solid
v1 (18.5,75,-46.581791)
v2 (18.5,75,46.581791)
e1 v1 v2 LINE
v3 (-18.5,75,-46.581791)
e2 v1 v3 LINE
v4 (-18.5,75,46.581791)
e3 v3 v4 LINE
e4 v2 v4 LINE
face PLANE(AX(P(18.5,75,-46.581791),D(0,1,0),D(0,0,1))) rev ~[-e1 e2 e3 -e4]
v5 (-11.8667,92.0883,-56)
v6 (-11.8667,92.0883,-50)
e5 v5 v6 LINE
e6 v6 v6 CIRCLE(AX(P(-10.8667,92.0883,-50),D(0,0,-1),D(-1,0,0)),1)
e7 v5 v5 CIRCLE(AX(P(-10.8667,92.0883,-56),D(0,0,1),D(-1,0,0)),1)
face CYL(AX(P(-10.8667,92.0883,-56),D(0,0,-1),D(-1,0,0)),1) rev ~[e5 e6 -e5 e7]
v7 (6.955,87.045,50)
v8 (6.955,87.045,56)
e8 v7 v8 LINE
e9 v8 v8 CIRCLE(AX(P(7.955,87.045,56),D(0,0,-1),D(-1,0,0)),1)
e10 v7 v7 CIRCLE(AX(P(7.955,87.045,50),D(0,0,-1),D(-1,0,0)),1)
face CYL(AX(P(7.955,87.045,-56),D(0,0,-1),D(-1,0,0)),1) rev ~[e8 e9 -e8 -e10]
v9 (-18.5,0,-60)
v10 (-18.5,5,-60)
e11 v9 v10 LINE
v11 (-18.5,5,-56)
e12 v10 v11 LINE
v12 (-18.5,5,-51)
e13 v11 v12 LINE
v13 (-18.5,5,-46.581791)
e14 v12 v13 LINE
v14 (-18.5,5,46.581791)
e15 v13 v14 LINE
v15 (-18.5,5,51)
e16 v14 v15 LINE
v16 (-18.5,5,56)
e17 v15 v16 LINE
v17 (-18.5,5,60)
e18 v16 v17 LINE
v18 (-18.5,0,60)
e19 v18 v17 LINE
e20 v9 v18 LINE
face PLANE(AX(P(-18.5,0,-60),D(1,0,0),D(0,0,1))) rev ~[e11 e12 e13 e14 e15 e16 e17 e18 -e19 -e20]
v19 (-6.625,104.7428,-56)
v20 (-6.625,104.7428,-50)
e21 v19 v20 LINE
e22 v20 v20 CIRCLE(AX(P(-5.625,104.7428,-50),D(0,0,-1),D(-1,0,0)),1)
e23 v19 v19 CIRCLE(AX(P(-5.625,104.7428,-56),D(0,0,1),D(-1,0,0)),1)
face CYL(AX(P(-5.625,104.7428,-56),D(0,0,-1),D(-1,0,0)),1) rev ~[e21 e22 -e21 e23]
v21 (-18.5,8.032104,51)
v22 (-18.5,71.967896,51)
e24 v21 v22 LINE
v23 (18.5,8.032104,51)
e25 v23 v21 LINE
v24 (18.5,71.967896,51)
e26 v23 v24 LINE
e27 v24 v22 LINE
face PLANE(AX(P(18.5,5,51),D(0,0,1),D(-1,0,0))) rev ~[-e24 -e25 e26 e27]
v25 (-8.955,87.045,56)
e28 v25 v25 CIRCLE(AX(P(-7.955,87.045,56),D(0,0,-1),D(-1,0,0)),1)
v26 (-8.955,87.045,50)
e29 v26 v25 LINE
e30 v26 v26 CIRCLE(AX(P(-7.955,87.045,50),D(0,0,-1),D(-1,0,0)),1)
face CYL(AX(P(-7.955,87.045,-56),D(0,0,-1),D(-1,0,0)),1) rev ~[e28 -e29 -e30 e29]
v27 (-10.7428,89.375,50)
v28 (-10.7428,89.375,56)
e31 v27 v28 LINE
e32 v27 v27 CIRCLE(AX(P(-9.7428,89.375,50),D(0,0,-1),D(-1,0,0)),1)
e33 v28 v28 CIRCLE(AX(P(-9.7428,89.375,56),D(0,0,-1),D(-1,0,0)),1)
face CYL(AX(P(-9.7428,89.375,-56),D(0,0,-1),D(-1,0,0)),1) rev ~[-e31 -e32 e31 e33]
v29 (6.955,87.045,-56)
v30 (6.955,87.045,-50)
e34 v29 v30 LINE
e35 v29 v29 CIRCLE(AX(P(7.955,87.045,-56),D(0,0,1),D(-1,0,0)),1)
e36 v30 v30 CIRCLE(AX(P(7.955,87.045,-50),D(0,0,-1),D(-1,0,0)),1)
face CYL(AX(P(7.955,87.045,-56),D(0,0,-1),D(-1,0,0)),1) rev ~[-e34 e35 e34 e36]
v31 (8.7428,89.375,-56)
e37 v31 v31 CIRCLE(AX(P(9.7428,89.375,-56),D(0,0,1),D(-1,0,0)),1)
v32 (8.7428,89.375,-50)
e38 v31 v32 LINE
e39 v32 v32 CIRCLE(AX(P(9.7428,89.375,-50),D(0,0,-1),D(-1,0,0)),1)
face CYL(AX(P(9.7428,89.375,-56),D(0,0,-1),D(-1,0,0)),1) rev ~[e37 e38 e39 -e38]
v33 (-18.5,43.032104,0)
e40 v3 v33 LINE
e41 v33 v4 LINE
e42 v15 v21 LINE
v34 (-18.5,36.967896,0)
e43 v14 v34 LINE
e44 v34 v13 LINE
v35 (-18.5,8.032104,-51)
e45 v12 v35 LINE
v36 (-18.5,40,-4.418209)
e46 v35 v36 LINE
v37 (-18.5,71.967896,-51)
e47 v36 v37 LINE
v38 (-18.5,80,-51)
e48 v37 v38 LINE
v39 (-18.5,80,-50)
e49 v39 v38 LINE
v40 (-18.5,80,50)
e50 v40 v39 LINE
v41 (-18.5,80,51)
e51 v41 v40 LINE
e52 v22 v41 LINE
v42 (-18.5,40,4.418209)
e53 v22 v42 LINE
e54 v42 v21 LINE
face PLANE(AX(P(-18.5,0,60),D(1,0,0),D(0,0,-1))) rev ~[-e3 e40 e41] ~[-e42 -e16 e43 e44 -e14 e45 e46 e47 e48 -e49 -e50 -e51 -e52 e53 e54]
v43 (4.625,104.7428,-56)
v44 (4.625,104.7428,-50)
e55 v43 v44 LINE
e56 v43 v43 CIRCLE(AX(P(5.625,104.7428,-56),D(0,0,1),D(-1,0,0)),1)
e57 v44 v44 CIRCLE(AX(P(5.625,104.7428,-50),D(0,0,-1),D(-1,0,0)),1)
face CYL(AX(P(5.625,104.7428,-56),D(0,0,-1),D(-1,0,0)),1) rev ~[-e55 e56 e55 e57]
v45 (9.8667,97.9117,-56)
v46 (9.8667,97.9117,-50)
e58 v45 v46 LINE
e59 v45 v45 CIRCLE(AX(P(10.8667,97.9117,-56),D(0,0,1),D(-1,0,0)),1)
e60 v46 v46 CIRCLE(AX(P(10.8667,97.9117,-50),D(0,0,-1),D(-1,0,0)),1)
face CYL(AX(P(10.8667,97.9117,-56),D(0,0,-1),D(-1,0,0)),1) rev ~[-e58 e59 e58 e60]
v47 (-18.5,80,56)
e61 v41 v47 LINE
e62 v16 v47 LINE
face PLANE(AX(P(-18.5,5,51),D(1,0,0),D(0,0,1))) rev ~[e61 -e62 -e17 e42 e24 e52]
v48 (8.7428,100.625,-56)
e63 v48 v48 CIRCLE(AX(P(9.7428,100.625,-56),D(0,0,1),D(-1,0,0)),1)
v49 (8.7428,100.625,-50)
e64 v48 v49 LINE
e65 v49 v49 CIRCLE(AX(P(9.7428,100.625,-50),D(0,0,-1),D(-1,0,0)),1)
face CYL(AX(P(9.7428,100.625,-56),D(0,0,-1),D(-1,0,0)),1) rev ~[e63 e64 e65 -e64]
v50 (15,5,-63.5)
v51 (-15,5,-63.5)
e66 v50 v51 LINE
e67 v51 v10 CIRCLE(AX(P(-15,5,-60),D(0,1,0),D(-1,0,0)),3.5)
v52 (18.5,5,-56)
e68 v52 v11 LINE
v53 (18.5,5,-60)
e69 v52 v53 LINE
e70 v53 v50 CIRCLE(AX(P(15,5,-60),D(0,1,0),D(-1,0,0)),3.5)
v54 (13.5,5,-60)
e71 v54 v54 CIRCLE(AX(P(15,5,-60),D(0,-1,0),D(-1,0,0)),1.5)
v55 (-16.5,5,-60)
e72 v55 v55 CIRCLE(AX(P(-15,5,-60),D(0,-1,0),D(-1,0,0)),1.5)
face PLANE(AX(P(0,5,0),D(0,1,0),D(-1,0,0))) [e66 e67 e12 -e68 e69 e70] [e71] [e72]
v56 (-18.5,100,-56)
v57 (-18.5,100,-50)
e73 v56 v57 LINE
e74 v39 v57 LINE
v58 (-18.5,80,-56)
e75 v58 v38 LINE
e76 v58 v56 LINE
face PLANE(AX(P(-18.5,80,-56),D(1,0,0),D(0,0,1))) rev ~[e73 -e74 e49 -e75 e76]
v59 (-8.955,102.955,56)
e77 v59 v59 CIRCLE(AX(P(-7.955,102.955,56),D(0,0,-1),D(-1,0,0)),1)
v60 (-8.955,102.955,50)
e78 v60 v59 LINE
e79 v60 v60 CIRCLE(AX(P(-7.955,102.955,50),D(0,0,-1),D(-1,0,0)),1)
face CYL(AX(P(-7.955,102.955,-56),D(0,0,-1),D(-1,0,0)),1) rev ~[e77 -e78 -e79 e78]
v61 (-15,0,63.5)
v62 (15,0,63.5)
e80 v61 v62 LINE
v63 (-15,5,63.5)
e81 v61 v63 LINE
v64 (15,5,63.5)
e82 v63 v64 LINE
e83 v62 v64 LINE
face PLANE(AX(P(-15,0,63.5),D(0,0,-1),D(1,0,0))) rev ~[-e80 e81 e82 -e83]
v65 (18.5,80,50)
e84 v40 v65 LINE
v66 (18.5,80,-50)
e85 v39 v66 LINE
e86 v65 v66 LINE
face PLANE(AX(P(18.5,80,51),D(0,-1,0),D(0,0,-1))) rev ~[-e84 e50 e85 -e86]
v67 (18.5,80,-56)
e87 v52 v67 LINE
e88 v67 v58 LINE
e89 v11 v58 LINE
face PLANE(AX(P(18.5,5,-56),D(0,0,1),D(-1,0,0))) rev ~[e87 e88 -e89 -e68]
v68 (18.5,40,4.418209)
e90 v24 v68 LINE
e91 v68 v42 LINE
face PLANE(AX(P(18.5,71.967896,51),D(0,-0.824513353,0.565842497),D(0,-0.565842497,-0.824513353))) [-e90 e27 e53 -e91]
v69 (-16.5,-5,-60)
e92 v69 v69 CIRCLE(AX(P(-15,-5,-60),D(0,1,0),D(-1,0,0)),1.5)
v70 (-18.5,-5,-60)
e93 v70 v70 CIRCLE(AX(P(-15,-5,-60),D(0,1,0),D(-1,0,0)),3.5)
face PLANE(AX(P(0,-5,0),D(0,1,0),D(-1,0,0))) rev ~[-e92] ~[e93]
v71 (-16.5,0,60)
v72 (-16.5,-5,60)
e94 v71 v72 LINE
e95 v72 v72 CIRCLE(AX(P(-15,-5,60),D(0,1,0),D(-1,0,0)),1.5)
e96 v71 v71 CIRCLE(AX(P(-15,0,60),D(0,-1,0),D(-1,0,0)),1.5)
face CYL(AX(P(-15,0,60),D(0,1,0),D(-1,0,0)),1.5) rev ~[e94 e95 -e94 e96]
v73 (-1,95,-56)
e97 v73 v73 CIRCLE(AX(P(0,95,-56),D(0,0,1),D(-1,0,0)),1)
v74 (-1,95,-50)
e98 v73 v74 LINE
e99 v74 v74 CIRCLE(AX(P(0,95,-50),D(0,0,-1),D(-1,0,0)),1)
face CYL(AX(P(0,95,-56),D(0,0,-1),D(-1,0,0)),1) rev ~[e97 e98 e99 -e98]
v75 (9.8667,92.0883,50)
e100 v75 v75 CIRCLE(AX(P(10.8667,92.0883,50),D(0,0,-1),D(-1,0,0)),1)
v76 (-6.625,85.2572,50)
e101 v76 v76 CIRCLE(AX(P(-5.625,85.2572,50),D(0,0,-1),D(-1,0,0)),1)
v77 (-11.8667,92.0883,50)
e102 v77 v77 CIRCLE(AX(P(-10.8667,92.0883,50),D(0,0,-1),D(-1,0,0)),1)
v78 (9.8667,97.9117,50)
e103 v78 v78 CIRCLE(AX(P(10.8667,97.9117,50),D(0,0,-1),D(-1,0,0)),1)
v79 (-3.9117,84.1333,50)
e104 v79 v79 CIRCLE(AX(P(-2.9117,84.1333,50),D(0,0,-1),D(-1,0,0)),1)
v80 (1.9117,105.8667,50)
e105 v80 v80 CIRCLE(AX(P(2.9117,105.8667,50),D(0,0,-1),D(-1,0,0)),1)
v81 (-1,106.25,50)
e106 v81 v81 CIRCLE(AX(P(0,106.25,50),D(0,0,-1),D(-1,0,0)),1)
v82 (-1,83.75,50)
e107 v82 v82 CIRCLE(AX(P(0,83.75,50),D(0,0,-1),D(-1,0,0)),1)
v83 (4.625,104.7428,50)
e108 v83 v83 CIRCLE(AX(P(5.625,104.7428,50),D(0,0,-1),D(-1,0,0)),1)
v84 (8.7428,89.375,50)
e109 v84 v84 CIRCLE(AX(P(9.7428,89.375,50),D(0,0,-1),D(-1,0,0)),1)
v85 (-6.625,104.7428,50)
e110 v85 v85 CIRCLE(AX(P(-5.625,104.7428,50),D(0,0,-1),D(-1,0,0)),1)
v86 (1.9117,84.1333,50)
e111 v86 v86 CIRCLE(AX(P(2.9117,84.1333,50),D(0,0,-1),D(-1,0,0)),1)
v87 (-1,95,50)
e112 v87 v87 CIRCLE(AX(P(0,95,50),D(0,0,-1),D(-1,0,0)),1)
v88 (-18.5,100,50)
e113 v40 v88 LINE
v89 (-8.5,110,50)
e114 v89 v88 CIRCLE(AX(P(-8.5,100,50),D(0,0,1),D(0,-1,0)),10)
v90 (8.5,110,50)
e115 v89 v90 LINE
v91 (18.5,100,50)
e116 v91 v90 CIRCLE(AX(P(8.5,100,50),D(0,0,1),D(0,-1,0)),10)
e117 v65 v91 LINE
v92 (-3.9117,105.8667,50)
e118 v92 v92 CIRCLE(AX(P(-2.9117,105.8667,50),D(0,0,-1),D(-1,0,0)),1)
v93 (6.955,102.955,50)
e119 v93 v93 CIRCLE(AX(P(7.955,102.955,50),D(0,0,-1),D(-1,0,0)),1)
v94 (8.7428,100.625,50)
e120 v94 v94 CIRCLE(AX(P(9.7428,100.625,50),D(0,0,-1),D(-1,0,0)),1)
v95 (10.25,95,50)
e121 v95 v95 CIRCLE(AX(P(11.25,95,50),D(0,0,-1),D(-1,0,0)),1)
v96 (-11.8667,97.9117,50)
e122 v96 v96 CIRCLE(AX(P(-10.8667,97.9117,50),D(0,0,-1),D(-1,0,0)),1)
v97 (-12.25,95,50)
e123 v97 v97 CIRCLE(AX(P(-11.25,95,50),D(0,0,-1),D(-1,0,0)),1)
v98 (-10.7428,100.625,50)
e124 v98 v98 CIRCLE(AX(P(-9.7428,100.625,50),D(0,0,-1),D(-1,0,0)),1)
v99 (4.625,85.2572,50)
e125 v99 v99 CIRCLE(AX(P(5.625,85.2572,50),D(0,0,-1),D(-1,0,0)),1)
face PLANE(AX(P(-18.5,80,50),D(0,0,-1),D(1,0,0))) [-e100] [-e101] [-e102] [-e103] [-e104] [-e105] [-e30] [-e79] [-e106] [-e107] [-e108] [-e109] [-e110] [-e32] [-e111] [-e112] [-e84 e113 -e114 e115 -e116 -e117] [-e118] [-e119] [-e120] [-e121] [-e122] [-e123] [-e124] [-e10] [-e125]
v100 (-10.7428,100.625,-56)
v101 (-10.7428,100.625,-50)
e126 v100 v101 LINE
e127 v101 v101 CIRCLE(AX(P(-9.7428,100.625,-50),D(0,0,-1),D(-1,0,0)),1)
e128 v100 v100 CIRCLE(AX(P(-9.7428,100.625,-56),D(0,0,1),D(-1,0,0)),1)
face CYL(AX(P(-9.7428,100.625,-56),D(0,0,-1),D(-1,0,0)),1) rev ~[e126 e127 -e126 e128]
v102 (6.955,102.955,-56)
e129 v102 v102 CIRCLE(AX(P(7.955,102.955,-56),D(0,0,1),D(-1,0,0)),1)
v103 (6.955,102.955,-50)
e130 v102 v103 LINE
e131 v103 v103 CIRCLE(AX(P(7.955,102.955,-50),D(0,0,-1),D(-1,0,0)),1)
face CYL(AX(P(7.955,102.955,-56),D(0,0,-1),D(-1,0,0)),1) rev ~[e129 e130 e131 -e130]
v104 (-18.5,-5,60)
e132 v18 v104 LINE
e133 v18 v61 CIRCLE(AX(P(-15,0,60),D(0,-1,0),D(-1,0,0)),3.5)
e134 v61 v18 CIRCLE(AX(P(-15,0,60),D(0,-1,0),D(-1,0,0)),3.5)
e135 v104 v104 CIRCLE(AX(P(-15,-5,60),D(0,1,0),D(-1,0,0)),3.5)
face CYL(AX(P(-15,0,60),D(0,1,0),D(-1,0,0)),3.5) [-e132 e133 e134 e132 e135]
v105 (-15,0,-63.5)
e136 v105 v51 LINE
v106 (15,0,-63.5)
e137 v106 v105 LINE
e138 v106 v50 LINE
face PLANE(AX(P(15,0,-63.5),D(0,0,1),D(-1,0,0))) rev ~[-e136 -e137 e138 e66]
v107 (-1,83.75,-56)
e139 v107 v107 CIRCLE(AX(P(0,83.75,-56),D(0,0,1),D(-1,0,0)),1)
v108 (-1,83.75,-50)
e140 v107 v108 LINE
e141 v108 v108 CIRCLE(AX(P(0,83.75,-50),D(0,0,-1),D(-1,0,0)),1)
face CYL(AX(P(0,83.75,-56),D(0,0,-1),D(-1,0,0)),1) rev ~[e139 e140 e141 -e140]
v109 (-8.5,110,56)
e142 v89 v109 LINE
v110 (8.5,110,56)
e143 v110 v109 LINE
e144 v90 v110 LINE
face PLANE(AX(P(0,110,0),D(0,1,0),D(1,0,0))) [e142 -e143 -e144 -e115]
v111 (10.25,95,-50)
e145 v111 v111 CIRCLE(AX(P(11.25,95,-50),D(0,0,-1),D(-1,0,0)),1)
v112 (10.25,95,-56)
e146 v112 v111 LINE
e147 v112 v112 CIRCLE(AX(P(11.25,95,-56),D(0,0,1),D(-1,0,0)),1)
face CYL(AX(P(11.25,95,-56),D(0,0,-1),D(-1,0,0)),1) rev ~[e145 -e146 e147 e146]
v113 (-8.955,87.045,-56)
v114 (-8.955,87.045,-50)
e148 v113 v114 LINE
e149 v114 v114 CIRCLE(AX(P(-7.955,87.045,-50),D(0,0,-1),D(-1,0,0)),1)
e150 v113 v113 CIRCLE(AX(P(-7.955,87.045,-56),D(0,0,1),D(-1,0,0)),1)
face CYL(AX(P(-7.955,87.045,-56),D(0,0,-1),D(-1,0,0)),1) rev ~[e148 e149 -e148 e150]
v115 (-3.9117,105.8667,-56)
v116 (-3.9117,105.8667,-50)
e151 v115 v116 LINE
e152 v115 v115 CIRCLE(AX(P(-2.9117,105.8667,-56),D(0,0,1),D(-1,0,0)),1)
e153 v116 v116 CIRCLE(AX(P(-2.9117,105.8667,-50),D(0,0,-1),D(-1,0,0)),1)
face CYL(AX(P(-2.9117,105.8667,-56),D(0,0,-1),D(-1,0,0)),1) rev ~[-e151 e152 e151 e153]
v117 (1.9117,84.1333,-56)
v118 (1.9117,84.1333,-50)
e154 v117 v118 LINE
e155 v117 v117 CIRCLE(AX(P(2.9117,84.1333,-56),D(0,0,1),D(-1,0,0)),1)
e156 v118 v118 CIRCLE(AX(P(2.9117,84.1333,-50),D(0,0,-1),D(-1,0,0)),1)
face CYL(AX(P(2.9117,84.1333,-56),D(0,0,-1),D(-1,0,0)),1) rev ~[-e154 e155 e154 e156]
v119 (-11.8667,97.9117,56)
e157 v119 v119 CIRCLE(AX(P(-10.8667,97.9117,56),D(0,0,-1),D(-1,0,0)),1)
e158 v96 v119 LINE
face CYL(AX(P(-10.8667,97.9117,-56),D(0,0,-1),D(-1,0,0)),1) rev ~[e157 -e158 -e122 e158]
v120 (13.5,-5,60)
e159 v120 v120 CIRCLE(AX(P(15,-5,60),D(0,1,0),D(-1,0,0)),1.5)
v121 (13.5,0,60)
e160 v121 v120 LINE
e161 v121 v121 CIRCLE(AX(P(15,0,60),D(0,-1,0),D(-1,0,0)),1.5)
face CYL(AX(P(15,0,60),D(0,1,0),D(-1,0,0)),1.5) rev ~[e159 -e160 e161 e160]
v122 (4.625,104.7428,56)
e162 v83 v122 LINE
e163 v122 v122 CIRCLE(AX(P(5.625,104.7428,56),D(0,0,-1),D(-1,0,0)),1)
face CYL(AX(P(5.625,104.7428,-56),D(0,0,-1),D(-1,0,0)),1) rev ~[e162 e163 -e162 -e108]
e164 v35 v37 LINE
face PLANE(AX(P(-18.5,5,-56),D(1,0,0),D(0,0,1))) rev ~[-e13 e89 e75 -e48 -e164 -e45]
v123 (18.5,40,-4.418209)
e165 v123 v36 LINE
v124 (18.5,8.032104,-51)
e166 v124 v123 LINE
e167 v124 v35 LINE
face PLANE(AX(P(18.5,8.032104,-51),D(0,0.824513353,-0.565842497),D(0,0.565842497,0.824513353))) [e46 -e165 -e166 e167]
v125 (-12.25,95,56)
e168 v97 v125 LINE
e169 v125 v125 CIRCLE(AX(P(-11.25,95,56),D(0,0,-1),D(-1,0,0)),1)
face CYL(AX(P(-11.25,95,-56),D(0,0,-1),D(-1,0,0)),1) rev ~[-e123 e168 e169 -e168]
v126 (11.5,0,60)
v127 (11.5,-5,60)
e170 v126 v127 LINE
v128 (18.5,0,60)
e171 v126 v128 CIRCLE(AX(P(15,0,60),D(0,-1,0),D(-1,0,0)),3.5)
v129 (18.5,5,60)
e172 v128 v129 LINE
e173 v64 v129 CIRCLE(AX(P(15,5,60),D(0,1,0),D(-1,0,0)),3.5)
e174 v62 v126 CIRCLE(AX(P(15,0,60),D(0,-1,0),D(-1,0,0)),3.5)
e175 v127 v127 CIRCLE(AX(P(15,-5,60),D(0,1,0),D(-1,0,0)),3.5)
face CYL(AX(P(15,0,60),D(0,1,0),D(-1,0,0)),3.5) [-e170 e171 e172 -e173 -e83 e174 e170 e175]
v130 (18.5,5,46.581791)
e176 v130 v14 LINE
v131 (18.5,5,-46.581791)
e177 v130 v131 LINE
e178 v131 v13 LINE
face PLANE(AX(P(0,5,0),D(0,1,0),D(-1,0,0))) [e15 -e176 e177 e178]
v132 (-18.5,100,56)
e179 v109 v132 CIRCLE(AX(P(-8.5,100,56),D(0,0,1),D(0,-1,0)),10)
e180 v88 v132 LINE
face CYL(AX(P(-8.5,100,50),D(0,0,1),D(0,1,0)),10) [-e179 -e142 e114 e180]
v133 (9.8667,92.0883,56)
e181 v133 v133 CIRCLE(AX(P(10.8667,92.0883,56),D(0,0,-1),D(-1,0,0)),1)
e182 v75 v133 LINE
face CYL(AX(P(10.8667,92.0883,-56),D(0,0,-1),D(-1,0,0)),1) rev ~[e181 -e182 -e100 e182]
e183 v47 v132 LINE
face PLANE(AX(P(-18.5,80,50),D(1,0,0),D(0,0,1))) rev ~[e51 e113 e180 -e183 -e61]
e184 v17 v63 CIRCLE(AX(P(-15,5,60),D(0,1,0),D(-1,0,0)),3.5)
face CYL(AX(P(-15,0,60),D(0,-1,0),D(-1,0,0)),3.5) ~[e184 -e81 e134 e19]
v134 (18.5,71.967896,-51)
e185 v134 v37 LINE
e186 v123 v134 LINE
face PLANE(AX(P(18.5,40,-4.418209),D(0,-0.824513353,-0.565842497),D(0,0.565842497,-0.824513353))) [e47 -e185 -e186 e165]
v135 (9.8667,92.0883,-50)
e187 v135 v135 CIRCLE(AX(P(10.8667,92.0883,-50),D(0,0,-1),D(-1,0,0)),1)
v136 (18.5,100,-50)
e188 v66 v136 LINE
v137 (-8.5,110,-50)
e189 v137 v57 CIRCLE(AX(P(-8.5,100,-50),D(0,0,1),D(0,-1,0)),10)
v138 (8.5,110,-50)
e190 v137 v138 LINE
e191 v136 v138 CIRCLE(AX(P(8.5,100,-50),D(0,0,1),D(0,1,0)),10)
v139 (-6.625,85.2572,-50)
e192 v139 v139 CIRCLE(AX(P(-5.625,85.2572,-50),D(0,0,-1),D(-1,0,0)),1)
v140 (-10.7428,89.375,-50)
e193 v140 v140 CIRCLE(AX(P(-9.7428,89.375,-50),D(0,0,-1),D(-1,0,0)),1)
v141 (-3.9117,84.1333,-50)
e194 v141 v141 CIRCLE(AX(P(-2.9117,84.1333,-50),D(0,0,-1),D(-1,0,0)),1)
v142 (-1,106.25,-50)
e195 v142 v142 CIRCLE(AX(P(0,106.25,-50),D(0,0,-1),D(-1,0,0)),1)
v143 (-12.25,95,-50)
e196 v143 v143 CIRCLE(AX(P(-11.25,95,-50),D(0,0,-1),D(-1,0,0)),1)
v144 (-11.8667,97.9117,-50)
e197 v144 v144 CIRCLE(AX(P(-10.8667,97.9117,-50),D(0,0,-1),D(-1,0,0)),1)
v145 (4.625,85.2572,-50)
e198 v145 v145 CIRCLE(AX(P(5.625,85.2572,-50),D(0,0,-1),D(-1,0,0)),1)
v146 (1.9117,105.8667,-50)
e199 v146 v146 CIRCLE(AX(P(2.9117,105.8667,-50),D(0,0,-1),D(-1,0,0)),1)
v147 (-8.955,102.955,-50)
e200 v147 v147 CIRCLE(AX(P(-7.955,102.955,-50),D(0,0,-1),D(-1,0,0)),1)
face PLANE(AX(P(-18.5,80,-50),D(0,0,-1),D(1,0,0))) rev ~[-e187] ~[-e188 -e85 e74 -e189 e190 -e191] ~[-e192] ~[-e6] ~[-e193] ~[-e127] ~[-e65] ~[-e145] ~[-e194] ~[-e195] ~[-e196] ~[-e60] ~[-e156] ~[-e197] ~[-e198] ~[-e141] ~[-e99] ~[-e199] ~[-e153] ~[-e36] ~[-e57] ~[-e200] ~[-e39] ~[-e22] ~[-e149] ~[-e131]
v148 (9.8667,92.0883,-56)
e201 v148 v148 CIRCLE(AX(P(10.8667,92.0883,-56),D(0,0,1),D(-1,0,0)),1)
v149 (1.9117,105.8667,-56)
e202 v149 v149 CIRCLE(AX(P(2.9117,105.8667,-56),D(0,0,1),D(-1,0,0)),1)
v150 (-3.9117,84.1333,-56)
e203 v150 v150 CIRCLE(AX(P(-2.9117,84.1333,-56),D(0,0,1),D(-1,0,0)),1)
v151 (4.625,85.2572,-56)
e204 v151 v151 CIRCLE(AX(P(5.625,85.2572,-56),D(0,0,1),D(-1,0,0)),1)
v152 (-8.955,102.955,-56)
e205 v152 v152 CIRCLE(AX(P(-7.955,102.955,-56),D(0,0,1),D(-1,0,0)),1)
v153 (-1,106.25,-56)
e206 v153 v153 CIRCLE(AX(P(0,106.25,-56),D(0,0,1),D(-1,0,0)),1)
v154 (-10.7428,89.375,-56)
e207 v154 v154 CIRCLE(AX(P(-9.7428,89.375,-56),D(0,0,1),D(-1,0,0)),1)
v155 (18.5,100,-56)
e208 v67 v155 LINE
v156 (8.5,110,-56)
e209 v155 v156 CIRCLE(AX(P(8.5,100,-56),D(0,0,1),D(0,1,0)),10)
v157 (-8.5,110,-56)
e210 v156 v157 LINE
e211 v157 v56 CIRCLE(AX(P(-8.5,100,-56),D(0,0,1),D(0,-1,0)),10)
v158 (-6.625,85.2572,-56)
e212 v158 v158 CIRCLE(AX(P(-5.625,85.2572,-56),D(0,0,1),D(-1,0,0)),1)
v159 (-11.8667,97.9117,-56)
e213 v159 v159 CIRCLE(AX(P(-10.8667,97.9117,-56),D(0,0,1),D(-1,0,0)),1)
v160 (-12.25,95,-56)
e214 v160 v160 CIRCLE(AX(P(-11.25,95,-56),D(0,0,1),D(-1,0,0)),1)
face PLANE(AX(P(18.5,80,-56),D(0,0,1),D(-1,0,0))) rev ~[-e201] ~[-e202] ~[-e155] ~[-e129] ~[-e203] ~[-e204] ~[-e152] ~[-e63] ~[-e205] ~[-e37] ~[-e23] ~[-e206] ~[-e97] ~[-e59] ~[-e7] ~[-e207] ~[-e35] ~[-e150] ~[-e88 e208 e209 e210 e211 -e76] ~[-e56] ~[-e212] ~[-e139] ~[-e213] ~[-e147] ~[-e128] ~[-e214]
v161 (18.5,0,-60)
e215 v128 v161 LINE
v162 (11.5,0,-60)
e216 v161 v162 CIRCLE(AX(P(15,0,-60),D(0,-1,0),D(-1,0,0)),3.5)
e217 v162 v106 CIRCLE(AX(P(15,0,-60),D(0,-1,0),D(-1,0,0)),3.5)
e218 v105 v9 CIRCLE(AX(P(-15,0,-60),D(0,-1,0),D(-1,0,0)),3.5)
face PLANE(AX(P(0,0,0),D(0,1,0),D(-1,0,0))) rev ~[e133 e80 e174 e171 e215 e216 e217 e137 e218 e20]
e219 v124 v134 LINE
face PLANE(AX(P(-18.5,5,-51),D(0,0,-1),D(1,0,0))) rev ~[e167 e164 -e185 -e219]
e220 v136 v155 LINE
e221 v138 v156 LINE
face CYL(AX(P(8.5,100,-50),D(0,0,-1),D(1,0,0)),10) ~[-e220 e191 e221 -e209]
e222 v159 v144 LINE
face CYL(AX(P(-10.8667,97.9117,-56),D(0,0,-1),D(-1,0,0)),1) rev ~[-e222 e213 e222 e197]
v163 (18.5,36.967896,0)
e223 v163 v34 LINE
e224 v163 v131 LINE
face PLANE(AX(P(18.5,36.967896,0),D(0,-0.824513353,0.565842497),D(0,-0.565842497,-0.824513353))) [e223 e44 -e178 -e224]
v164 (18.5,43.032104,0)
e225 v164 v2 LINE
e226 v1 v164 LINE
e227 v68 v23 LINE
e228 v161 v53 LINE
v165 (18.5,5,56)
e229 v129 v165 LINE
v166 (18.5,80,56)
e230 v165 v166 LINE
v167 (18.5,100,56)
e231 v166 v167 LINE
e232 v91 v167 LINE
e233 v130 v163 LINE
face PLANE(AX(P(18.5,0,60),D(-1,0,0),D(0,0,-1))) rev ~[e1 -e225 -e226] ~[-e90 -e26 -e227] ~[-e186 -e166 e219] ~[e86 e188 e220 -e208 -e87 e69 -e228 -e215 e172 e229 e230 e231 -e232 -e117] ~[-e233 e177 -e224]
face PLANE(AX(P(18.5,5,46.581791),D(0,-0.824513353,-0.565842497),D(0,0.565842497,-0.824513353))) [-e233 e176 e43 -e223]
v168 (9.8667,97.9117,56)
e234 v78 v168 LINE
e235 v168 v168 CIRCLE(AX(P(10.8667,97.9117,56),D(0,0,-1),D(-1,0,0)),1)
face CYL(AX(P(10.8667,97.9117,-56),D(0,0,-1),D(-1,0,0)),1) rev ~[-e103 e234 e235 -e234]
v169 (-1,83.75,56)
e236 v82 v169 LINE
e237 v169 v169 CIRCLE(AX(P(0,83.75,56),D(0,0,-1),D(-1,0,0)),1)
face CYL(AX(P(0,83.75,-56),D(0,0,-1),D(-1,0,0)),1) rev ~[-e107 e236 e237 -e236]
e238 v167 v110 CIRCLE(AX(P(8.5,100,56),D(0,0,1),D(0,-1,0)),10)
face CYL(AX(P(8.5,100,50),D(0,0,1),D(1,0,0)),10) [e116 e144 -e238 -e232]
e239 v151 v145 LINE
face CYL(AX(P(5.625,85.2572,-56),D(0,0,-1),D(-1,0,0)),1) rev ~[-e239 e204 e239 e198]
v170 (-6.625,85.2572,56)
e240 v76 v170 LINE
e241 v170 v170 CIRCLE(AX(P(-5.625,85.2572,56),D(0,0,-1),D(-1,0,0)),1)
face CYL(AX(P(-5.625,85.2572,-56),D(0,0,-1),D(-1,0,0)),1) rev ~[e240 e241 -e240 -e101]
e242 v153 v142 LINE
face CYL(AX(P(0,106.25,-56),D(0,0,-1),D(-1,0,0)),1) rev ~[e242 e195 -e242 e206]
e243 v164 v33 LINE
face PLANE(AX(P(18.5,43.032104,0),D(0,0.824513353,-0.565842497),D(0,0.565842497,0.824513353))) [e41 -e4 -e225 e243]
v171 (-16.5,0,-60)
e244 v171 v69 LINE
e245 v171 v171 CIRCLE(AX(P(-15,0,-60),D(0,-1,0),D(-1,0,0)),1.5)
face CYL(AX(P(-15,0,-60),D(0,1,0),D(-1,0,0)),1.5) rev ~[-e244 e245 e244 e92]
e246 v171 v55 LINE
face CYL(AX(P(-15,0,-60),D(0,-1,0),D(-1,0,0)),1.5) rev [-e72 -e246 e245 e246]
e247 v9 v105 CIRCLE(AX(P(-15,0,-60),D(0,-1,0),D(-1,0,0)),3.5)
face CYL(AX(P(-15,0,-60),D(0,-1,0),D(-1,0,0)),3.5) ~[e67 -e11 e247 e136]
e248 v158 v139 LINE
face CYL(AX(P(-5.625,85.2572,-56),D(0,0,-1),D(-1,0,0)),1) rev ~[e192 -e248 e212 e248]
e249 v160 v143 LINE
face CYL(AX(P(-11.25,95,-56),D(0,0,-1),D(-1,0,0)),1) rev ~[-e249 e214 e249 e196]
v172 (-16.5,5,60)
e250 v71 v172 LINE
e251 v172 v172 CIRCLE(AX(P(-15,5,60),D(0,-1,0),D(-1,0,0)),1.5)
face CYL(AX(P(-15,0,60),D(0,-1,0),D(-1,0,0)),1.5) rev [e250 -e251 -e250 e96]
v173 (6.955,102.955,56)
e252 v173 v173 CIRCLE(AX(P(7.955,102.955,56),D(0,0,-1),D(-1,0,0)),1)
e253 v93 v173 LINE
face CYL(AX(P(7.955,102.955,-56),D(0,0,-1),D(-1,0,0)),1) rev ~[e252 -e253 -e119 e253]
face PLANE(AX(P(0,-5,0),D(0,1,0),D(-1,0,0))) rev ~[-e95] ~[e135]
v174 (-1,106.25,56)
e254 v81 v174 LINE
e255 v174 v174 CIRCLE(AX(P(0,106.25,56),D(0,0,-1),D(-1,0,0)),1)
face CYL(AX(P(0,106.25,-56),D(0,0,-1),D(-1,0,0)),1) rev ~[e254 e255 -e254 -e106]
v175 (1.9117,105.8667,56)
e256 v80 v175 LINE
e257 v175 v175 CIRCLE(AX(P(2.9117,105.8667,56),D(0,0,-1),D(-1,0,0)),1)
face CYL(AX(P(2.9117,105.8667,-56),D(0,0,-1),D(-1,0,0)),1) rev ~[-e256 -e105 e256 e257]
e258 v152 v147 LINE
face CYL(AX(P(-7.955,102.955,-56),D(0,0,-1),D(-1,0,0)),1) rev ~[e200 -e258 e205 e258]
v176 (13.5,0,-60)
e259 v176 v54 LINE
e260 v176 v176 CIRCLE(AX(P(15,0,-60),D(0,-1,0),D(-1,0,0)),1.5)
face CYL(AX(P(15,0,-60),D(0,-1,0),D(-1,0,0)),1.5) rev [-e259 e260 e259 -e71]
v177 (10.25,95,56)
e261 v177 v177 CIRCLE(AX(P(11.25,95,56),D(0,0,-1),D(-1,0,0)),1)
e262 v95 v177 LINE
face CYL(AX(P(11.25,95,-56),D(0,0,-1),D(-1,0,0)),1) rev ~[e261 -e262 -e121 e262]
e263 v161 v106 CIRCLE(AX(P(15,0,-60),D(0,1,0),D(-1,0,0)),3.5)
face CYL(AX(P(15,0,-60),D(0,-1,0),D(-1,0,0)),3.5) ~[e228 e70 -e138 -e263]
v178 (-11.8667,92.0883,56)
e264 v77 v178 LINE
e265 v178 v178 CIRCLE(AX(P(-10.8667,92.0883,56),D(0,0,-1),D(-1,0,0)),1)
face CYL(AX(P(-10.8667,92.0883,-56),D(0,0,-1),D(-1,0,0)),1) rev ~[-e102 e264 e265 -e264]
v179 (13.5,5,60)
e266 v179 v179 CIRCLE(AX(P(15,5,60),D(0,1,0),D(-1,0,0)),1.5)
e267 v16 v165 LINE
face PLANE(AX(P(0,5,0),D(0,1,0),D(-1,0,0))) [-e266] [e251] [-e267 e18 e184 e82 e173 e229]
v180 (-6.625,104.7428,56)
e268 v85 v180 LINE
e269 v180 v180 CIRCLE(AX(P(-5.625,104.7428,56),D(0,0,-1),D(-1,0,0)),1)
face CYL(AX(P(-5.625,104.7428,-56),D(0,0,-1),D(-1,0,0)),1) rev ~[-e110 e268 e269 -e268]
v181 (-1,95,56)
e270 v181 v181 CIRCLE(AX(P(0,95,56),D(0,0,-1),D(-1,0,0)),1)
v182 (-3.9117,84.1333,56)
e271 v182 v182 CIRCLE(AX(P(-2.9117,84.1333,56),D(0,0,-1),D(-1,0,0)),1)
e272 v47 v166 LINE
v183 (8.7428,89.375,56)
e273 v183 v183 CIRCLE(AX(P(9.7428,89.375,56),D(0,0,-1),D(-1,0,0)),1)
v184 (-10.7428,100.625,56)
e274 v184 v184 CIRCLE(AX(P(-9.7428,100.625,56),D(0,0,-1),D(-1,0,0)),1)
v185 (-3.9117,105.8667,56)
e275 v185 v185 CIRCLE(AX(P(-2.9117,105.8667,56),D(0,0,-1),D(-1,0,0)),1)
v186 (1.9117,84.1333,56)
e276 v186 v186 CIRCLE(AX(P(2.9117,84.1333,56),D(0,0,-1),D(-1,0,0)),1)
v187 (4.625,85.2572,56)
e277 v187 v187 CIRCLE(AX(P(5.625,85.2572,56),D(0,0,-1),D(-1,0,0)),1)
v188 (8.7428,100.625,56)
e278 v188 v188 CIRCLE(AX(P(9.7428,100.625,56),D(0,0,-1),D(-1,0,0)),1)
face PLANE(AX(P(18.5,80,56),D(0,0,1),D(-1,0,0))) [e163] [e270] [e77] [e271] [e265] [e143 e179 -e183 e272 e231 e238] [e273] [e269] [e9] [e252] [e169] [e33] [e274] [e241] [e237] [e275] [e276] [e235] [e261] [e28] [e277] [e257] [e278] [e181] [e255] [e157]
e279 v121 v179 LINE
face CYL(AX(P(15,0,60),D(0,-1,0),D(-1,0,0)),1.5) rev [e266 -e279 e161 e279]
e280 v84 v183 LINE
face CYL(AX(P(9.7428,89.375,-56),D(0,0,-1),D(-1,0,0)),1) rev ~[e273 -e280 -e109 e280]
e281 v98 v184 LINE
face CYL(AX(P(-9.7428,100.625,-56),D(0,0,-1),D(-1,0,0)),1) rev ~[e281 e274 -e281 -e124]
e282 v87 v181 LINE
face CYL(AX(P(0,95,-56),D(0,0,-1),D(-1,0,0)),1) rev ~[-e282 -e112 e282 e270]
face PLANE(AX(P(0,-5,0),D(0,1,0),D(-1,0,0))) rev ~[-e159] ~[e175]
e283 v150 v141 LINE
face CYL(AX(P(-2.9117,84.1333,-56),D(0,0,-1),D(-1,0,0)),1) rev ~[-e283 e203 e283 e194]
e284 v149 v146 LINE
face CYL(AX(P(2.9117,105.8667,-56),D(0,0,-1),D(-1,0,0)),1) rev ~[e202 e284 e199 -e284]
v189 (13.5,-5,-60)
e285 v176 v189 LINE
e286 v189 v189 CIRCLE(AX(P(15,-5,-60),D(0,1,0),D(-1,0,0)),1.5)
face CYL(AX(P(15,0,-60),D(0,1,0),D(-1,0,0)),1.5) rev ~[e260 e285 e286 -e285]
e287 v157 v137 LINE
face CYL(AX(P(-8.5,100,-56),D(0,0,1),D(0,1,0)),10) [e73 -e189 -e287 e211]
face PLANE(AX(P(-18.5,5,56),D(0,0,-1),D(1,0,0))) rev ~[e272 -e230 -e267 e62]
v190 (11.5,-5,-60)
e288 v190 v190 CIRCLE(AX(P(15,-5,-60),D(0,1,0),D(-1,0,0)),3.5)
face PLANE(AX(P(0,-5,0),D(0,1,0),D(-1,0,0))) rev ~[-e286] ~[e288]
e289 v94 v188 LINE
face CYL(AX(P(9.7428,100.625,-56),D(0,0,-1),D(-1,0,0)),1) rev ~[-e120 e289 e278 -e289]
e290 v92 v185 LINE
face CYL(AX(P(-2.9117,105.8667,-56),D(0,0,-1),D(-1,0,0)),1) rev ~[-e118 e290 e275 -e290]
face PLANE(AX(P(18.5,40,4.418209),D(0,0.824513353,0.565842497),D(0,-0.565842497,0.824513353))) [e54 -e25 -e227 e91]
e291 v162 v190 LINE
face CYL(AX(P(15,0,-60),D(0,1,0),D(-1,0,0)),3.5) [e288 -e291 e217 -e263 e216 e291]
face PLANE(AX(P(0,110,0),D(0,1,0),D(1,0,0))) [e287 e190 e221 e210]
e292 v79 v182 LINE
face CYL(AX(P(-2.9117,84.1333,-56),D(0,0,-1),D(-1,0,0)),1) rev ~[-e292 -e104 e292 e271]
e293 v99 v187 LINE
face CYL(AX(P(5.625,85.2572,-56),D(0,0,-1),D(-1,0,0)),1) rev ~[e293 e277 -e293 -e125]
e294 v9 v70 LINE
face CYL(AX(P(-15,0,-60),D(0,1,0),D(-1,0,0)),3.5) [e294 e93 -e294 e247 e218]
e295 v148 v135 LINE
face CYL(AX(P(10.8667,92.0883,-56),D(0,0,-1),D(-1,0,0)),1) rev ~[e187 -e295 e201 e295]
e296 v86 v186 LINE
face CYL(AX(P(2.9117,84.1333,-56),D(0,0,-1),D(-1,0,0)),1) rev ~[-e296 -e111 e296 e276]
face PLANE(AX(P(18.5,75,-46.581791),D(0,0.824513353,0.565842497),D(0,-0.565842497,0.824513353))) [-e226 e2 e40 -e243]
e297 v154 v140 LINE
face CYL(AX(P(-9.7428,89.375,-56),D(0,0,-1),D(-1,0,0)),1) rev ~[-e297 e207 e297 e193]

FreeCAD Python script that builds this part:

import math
import FreeCAD as App
import Part
import Sketcher
from FreeCAD import Vector
Q = App.Units.Quantity


def edges_at(feature, points):
    """Names of the edges that pass closest to the given points."""
    edges = feature.Shape.Edges
    near = lambda p: min(range(len(edges)), key=lambda i: edges[i].distToShape(Part.Vertex(*p))[0])
    return sorted({f"Edge{near(p) + 1}" for p in points})

doc = App.newDocument("Part")
body = doc.addObject("PartDesign::Body", "Body")
body.AllowCompound = True

sketch1 = body.newObject("Sketcher::SketchObject", "Sketch")
sketch1.AttachmentSupport = (doc.getObject("XZ_Plane"), [""])
sketch1.MapMode = "FlatFace"
sketch1.addGeometry([
    Part.Circle(Vector(15, 60, 0), Vector(0, 0, 1), 3.5),
    Part.Circle(Vector(15, 60, 0), Vector(0, 0, 1), 1.5),
    Part.Circle(Vector(-15, 60, 0), Vector(0, 0, 1), 3.5),
    Part.Circle(Vector(-15, 60, 0), Vector(0, 0, 1), 1.5),
    Part.Circle(Vector(15, -60, 0), Vector(0, 0, 1), 3.5),
    Part.Circle(Vector(15, -60, 0), Vector(0, 0, 1), 1.5),
    Part.Circle(Vector(-15, -60, 0), Vector(0, 0, 1), 3.5),
    Part.Circle(Vector(-15, -60, 0), Vector(0, 0, 1), 1.5),
], False)
sketch1.addConstraint([
    Sketcher.Constraint("Coincident", 1, 3, 0, 3),
    Sketcher.Constraint("Coincident", 3, 3, 2, 3),
    Sketcher.Constraint("Coincident", 5, 3, 4, 3),
    Sketcher.Constraint("Coincident", 7, 3, 6, 3),
    Sketcher.Constraint("Equal", 0, 2),
    Sketcher.Constraint("Equal", 1, 3),
    Sketcher.Constraint("Equal", 2, 4),
    Sketcher.Constraint("Equal", 3, 5),
    Sketcher.Constraint("Equal", 4, 6),
    Sketcher.Constraint("Equal", 5, 7),
    Sketcher.Constraint("Symmetric", 2, 3, 4, 3, -1, 1),
    Sketcher.Constraint("Symmetric", 0, 3, 6, 3, -1, 1),
    Sketcher.Constraint("Symmetric", 0, 3, 2, 3, -2),
    Sketcher.Constraint("Diameter", 0, Q("7 mm")),
    Sketcher.Constraint("Diameter", 1, Q("3 mm")),
    Sketcher.Constraint("DistanceX", 2, 3, 0, 3, Q("30 mm")),
    Sketcher.Constraint("DistanceY", 4, 3, 0, 3, Q("120 mm")),
])
pad1 = body.newObject("PartDesign::Pad", "Pad")
pad1.Profile = sketch1
pad1.Length = 5

sketch2 = body.newObject("Sketcher::SketchObject", "Sketch001")
sketch2.AttachmentSupport = (doc.getObject("XZ_Plane"), [""])
sketch2.MapMode = "FlatFace"
sketch2.addGeometry([
    Part.LineSegment(Vector(-15, 63.5, 0), Vector(15, 63.5, 0)),
    Part.ArcOfCircle(Part.Circle(Vector(15, 60, 0), Vector(0, 0, 1), 3.5), math.radians(0), math.radians(90)),
    Part.LineSegment(Vector(18.5, 60, 0), Vector(18.5, -60, 0)),
    Part.ArcOfCircle(Part.Circle(Vector(15, -60, 0), Vector(0, 0, 1), 3.5), math.radians(-90), math.radians(0)),
    Part.LineSegment(Vector(15, -63.5, 0), Vector(-15, -63.5, 0)),
    Part.ArcOfCircle(Part.Circle(Vector(-15, -60, 0), Vector(0, 0, 1), 3.5), math.radians(180), math.radians(270)),
    Part.LineSegment(Vector(-18.5, -60, 0), Vector(-18.5, 60, 0)),
    Part.ArcOfCircle(Part.Circle(Vector(-15, 60, 0), Vector(0, 0, 1), 3.5), math.radians(90), math.radians(180)),
    Part.Circle(Vector(15, 60, 0), Vector(0, 0, 1), 1.5),
    Part.Circle(Vector(-15, 60, 0), Vector(0, 0, 1), 1.5),
    Part.Circle(Vector(-15, -60, 0), Vector(0, 0, 1), 1.5),
    Part.Circle(Vector(15, -60, 0), Vector(0, 0, 1), 1.5),
], False)
sketch2.addConstraint([
    Sketcher.Constraint("Tangent", 0, 2, 1, 2),
    Sketcher.Constraint("Tangent", 1, 1, 2, 1),
    Sketcher.Constraint("Tangent", 2, 2, 3, 2),
    Sketcher.Constraint("Tangent", 3, 1, 4, 1),
    Sketcher.Constraint("Tangent", 4, 2, 5, 2),
    Sketcher.Constraint("Tangent", 5, 1, 6, 1),
    Sketcher.Constraint("Tangent", 6, 2, 7, 2),
    Sketcher.Constraint("Tangent", 7, 1, 0, 1),
    Sketcher.Constraint("Horizontal", 0),
    Sketcher.Constraint("Vertical", 2),
    Sketcher.Constraint("Horizontal", 4),
    Sketcher.Constraint("Vertical", 6),
    Sketcher.Constraint("Coincident", 8, 3, 1, 3),
    Sketcher.Constraint("Coincident", 9, 3, 7, 3),
    Sketcher.Constraint("Coincident", 10, 3, 5, 3),
    Sketcher.Constraint("Coincident", 11, 3, 3, 3),
    Sketcher.Constraint("Equal", 1, 3),
    Sketcher.Constraint("Equal", 3, 5),
    Sketcher.Constraint("Equal", 5, 7),
    Sketcher.Constraint("Equal", 8, 9),
    Sketcher.Constraint("Equal", 9, 10),
    Sketcher.Constraint("Equal", 10, 11),
    Sketcher.Constraint("Symmetric", 1, 3, 5, 3, -1, 1),
    Sketcher.Constraint("Diameter", 8, Q("3 mm")),
    Sketcher.Constraint("Radius", 1, Q("3.5 mm")),
    Sketcher.Constraint("DistanceX", 0, 1, 0, 2, Q("30 mm")),
    Sketcher.Constraint("DistanceY", 2, 2, 2, 1, Q("120 mm")),
])
pad2 = body.newObject("PartDesign::Pad", "Pad001")
pad2.Profile = sketch2
pad2.Length = 5
pad2.Reversed = True

sketch3 = body.newObject("Sketcher::SketchObject", "Sketch002")
sketch3.AttachmentSupport = (doc.getObject("XZ_Plane"), [""])
sketch3.MapMode = "FlatFace"
sketch3.AttachmentOffset = App.Placement(Vector(0, 0, -5), App.Rotation())
sketch3.addGeometry([
    Part.LineSegment(Vector(18, -56, 0), Vector(-18, -56, 0)),
    Part.LineSegment(Vector(-18, -56, 0), Vector(-18, -51, 0)),
    Part.LineSegment(Vector(-18, -51, 0), Vector(18, -51, 0)),
    Part.LineSegment(Vector(18, -51, 0), Vector(18, -56, 0)),
    Part.LineSegment(Vector(18, 51, 0), Vector(-18, 51, 0)),
    Part.LineSegment(Vector(-18, 51, 0), Vector(-18, 56, 0)),
    Part.LineSegment(Vector(-18, 56, 0), Vector(18, 56, 0)),
    Part.LineSegment(Vector(18, 56, 0), Vector(18, 51, 0)),
], False)
sketch3.addConstraint([
    Sketcher.Constraint("Coincident", 0, 2, 1, 1),
    Sketcher.Constraint("Coincident", 1, 2, 2, 1),
    Sketcher.Constraint("Coincident", 2, 2, 3, 1),
    Sketcher.Constraint("Coincident", 3, 2, 0, 1),
    Sketcher.Constraint("Coincident", 4, 2, 5, 1),
    Sketcher.Constraint("Coincident", 5, 2, 6, 1),
    Sketcher.Constraint("Coincident", 6, 2, 7, 1),
    Sketcher.Constraint("Coincident", 7, 2, 4, 1),
    Sketcher.Constraint("Horizontal", 0),
    Sketcher.Constraint("Vertical", 1),
    Sketcher.Constraint("Horizontal", 2),
    Sketcher.Constraint("Vertical", 3),
    Sketcher.Constraint("Horizontal", 4),
    Sketcher.Constraint("Vertical", 5),
    Sketcher.Constraint("Horizontal", 6),
    Sketcher.Constraint("Vertical", 7),
    Sketcher.Constraint("Symmetric", 2, 2, 4, 2, -1, 1),
    Sketcher.Constraint("Symmetric", 0, 2, 6, 2, -1, 1),
    Sketcher.Constraint("Vertical", 1, 2, 4, 2),
    Sketcher.Constraint("DistanceY", 1, 1, 1, 2, Q("5 mm")),
    Sketcher.Constraint("DistanceX", 0, 2, 0, 1, Q("37 mm")),
    Sketcher.Constraint("DistanceY", 0, 2, -1, 1, Q("56 mm")),
])
pad3 = body.newObject("PartDesign::Pad", "Pad002")
pad3.Profile = sketch3
pad3.Length = 75
pad3.Reversed = True

sketch4 = body.newObject("Sketcher::SketchObject", "Sketch003")
sketch4.AttachmentSupport = (doc.getObject("YZ_Plane"), [""])
sketch4.MapMode = "FlatFace"
sketch4.AttachmentOffset = App.Placement(Vector(0, 0, 18.5), App.Rotation())
sketch4.addGeometry([
    Part.LineSegment(Vector(8, 51, 0), Vector(5, 51, 0)),
    Part.LineSegment(Vector(5, 51, 0), Vector(5, 46.6, 0)),
    Part.LineSegment(Vector(5, 46.6, 0), Vector(37, 0, 0)),
    Part.LineSegment(Vector(37, 0, 0), Vector(5, -46.6, 0)),
    Part.LineSegment(Vector(5, -46.6, 0), Vector(5, -51, 0)),
    Part.LineSegment(Vector(5, -51, 0), Vector(8, -51, 0)),
    Part.LineSegment(Vector(8, -51, 0), Vector(40, -4.4, 0)),
    Part.LineSegment(Vector(40, -4.4, 0), Vector(72, -51, 0)),
    Part.LineSegment(Vector(72, -51, 0), Vector(80, -51, 0)),
    Part.LineSegment(Vector(80, -51, 0), Vector(80, 51, 0)),
    Part.LineSegment(Vector(80, 51, 0), Vector(72, 51, 0)),
    Part.LineSegment(Vector(72, 51, 0), Vector(40, 4.4, 0)),
    Part.LineSegment(Vector(40, 4.4, 0), Vector(8, 51, 0)),
    Part.LineSegment(Vector(43, 0, 0), Vector(75, 46.6, 0)),
    Part.LineSegment(Vector(75, 46.6, 0), Vector(75, -46.6, 0)),
    Part.LineSegment(Vector(75, -46.6, 0), Vector(43, 0, 0)),
], False)
sketch4.addConstraint([
    Sketcher.Constraint("Coincident", 0, 2, 1, 1),
    Sketcher.Constraint("Coincident", 1, 2, 2, 1),
    Sketcher.Constraint("Coincident", 2, 2, 3, 1),
    Sketcher.Constraint("Coincident", 3, 2, 4, 1),
    Sketcher.Constraint("Coincident", 4, 2, 5, 1),
    Sketcher.Constraint("Coincident", 5, 2, 6, 1),
    Sketcher.Constraint("Coincident", 6, 2, 7, 1),
    Sketcher.Constraint("Coincident", 7, 2, 8, 1),
    Sketcher.Constraint("Coincident", 8, 2, 9, 1),
    Sketcher.Constraint("Coincident", 9, 2, 10, 1),
    Sketcher.Constraint("Coincident", 10, 2, 11, 1),
    Sketcher.Constraint("Coincident", 11, 2, 12, 1),
    Sketcher.Constraint("Coincident", 12, 2, 0, 1),
    Sketcher.Constraint("Coincident", 13, 2, 14, 1),
    Sketcher.Constraint("Coincident", 14, 2, 15, 1),
    Sketcher.Constraint("Coincident", 15, 2, 13, 1),
    Sketcher.Constraint("Horizontal", 0),
    Sketcher.Constraint("Vertical", 1),
    Sketcher.Constraint("Vertical", 4),
    Sketcher.Constraint("Horizontal", 5),
    Sketcher.Constraint("Horizontal", 8),
    Sketcher.Constraint("Vertical", 9),
    Sketcher.Constraint("Horizontal", 10),
    Sketcher.Constraint("Vertical", 14),
    Sketcher.Constraint("Symmetric", 1, 2, 3, 2, -1),
    Sketcher.Constraint("Symmetric", 7, 2, 10, 2, -1),
    Sketcher.Constraint("Symmetric", 6, 2, 11, 2, -1),
    Sketcher.Constraint("Symmetric", 5, 2, 12, 2, -1),
    Sketcher.Constraint("PointOnObject", 2, 2, -1),
    Sketcher.Constraint("PointOnObject", 15, 2, -1),
    Sketcher.Constraint("Parallel", 3, 6),
    Sketcher.Constraint("Parallel", 2, 7),
    Sketcher.Constraint("Parallel", 11, 13),
    Sketcher.Constraint("Parallel", 12, 15),
    Sketcher.Constraint("Horizontal", 5, 2, 7, 2),
    Sketcher.Constraint("Horizontal", 1, 2, 13, 2),
    Sketcher.Constraint("Equal", 3, 6),
    Sketcher.Constraint("DistanceX", -1, 1, 0, 2, Q("5 mm")),
    Sketcher.Constraint("DistanceX", 13, 2, 9, 2, Q("5 mm")),
    Sketcher.Constraint("DistanceY", 9, 1, 9, 2, Q("102 mm")),
    Sketcher.Constraint("DistanceX", -1, 1, 6, 2, Q("40 mm")),
    Sketcher.Constraint("DistanceX", -1, 1, 8, 2, Q("80 mm")),
    Sketcher.Constraint("Angle", 2, Q("-55.5392 deg")),
    Sketcher.Constraint("DistanceX", 0, 2, 0, 1, Q("3.032 mm")),
])
pad4 = body.newObject("PartDesign::Pad", "Pad003")
pad4.Profile = sketch4
pad4.Length = 37
pad4.Reversed = True

sketch5 = body.newObject("Sketcher::SketchObject", "Sketch004")
sketch5.AttachmentSupport = (doc.getObject("XZ_Plane"), [""])
sketch5.MapMode = "FlatFace"
sketch5.AttachmentOffset = App.Placement(Vector(0, 0, -80), App.Rotation())
sketch5.addGeometry([
    Part.LineSegment(Vector(-18, -56, 0), Vector(-18, -50, 0)),
    Part.LineSegment(Vector(-18, -50, 0), Vector(18, -50, 0)),
    Part.LineSegment(Vector(18, -50, 0), Vector(18, -56, 0)),
    Part.LineSegment(Vector(18, -56, 0), Vector(-18, -56, 0)),
    Part.LineSegment(Vector(-18, 56, 0), Vector(18, 56, 0)),
    Part.LineSegment(Vector(18, 56, 0), Vector(18, 50, 0)),
    Part.LineSegment(Vector(18, 50, 0), Vector(-18, 50, 0)),
    Part.LineSegment(Vector(-18, 50, 0), Vector(-18, 56, 0)),
], False)
sketch5.addConstraint([
    Sketcher.Constraint("Coincident", 0, 2, 1, 1),
    Sketcher.Constraint("Coincident", 1, 2, 2, 1),
    Sketcher.Constraint("Coincident", 2, 2, 3, 1),
    Sketcher.Constraint("Coincident", 3, 2, 0, 1),
    Sketcher.Constraint("Coincident", 4, 2, 5, 1),
    Sketcher.Constraint("Coincident", 5, 2, 6, 1),
    Sketcher.Constraint("Coincident", 6, 2, 7, 1),
    Sketcher.Constraint("Coincident", 7, 2, 4, 1),
    Sketcher.Constraint("Vertical", 0),
    Sketcher.Constraint("Horizontal", 1),
    Sketcher.Constraint("Vertical", 2),
    Sketcher.Constraint("Horizontal", 3),
    Sketcher.Constraint("Horizontal", 4),
    Sketcher.Constraint("Vertical", 5),
    Sketcher.Constraint("Horizontal", 6),
    Sketcher.Constraint("Vertical", 7),
    Sketcher.Constraint("Symmetric", 3, 2, 4, 2, -1, 1),
    Sketcher.Constraint("Symmetric", 1, 2, 6, 2, -1, 1),
    Sketcher.Constraint("Vertical", 2, 2, 4, 2),
    Sketcher.Constraint("DistanceY", 0, 1, 0, 2, Q("6 mm")),
    Sketcher.Constraint("DistanceX", 1, 1, 1, 2, Q("37 mm")),
    Sketcher.Constraint("DistanceY", 0, 2, -1, 1, Q("50 mm")),
])
pad5 = body.newObject("PartDesign::Pad", "Pad004")
pad5.Profile = sketch5
pad5.Length = 30
pad5.Reversed = True

sketch6 = body.newObject("Sketcher::SketchObject", "Sketch005")
sketch6.AttachmentSupport = (doc.getObject("XY_Plane"), [""])
sketch6.MapMode = "FlatFace"
sketch6.AttachmentOffset = App.Placement(Vector(0, 0, -56), App.Rotation())
sketch6.addGeometry([
    Part.Circle(Vector(0, 106.2, 0), Vector(0, 0, 1), 1),
    Part.Circle(Vector(0, 95, 0), Vector(0, 0, 1), 1),
    Part.Circle(Vector(-9.7, 100.6, 0), Vector(0, 0, 1), 1),
    Part.Circle(Vector(-8, 103, 0), Vector(0, 0, 1), 1),
    Part.Circle(Vector(2.9, 105.9, 0), Vector(0, 0, 1), 1),
    Part.Circle(Vector(9.7, 89.4, 0), Vector(0, 0, 1), 1),
    Part.Circle(Vector(8, 87, 0), Vector(0, 0, 1), 1),
    Part.Circle(Vector(-10.9, 97.9, 0), Vector(0, 0, 1), 1),
    Part.Circle(Vector(-5.6, 104.7, 0), Vector(0, 0, 1), 1),
    Part.Circle(Vector(-2.9, 105.9, 0), Vector(0, 0, 1), 1),
    Part.Circle(Vector(5.6, 104.7, 0), Vector(0, 0, 1), 1),
    Part.Circle(Vector(10.9, 92.1, 0), Vector(0, 0, 1), 1),
    Part.Circle(Vector(5.6, 85.3, 0), Vector(0, 0, 1), 1),
    Part.Circle(Vector(-11.2, 95, 0), Vector(0, 0, 1), 1),
    Part.Circle(Vector(8, 103, 0), Vector(0, 0, 1), 1),
    Part.Circle(Vector(11.2, 95, 0), Vector(0, 0, 1), 1),
    Part.Circle(Vector(2.9, 84.1, 0), Vector(0, 0, 1), 1),
    Part.Circle(Vector(-10.9, 92.1, 0), Vector(0, 0, 1), 1),
    Part.Circle(Vector(9.7, 100.6, 0), Vector(0, 0, 1), 1),
    Part.Circle(Vector(10.9, 97.9, 0), Vector(0, 0, 1), 1),
    Part.Circle(Vector(0, 83.8, 0), Vector(0, 0, 1), 1),
    Part.Circle(Vector(-9.7, 89.4, 0), Vector(0, 0, 1), 1),
    Part.Circle(Vector(-2.9, 84.1, 0), Vector(0, 0, 1), 1),
    Part.Circle(Vector(-8, 87, 0), Vector(0, 0, 1), 1),
    Part.Circle(Vector(-5.6, 85.3, 0), Vector(0, 0, 1), 1),
], False)
sketch6.addConstraint([
    Sketcher.Constraint("Equal", 0, 1),
    Sketcher.Constraint("Equal", 1, 2),
    Sketcher.Constraint("Equal", 2, 3),
    Sketcher.Constraint("Equal", 3, 4),
    Sketcher.Constraint("Equal", 4, 5),
    Sketcher.Constraint("Equal", 5, 6),
    Sketcher.Constraint("Equal", 6, 7),
    Sketcher.Constraint("Equal", 7, 8),
    Sketcher.Constraint("Equal", 8, 9),
    Sketcher.Constraint("Equal", 9, 10),
    Sketcher.Constraint("Equal", 10, 11),
    Sketcher.Constraint("Equal", 11, 12),
    Sketcher.Constraint("Equal", 12, 13),
    Sketcher.Constraint("Equal", 13, 14),
    Sketcher.Constraint("Equal", 14, 15),
    Sketcher.Constraint("Equal", 15, 16),
    Sketcher.Constraint("Equal", 16, 17),
    Sketcher.Constraint("Equal", 17, 18),
    Sketcher.Constraint("Equal", 18, 19),
    Sketcher.Constraint("Equal", 19, 20),
    Sketcher.Constraint("Equal", 20, 21),
    Sketcher.Constraint("Equal", 21, 22),
    Sketcher.Constraint("Equal", 22, 23),
    Sketcher.Constraint("Equal", 23, 24),
    Sketcher.Constraint("Symmetric", 4, 3, 9, 3, -2),
    Sketcher.Constraint("Symmetric", 8, 3, 10, 3, -2),
    Sketcher.Constraint("Symmetric", 3, 3, 14, 3, -2),
    Sketcher.Constraint("Symmetric", 13, 3, 15, 3, -2),
    Sketcher.Constraint("Symmetric", 11, 3, 17, 3, -2),
    Sketcher.Constraint("Symmetric", 2, 3, 18, 3, -2),
    Sketcher.Constraint("Symmetric", 7, 3, 19, 3, -2),
    Sketcher.Constraint("Symmetric", 5, 3, 21, 3, -2),
    Sketcher.Constraint("Symmetric", 16, 3, 22, 3, -2),
    Sketcher.Constraint("Symmetric", 6, 3, 23, 3, -2),
    Sketcher.Constraint("Symmetric", 12, 3, 24, 3, -2),
    Sketcher.Constraint("PointOnObject", 0, 3, -2),
    Sketcher.Constraint("PointOnObject", 1, 3, -2),
    Sketcher.Constraint("PointOnObject", 20, 3, -2),
    Sketcher.Constraint("Horizontal", 1, 3, 13, 3),
    Sketcher.Constraint("Vertical", 10, 3, 12, 3),
    Sketcher.Constraint("Vertical", 6, 3, 14, 3),
    Sketcher.Constraint("Vertical", 4, 3, 16, 3),
    Sketcher.Constraint("Vertical", 7, 3, 17, 3),
    Sketcher.Constraint("Vertical", 5, 3, 18, 3),
    Sketcher.Constraint("Diameter", 0, Q("2 mm")),
    Sketcher.Constraint("DistanceY", -1, 1, 1, 3, Q("95 mm")),
    Sketcher.Constraint("DistanceY", -1, 1, 0, 3, Q("106.25 mm")),
    Sketcher.Constraint("DistanceX", 13, 3, -1, 1, Q("11.25 mm")),
    Sketcher.Constraint("DistanceY", -1, 1, 20, 3, Q("83.75 mm")),
    Sketcher.Constraint("DistanceY", 2, 3, 3, 3, Q("2.33 mm")),
    Sketcher.Constraint("DistanceY", 5, 3, 3, 3, Q("13.58 mm")),
    Sketcher.Constraint("DistanceY", 6, 3, 5, 3, Q("2.33 mm")),
    Sketcher.Constraint("DistanceX", 3, 3, 8, 3, Q("2.33 mm")),
    Sketcher.Constraint("DistanceX", 8, 3, 10, 3, Q("11.25 mm")),
    Sketcher.Constraint("DistanceY", -1, 1, 2, 3, Q("100.625 mm")),
    Sketcher.Constraint("DistanceX", 4, 3, 5, 3, Q("6.831 mm")),
    Sketcher.Constraint("DistanceX", 7, 3, 2, 3, Q("1.124 mm")),
    Sketcher.Constraint("DistanceY", 7, 3, 4, 3, Q("7.955 mm")),
    Sketcher.Constraint("DistanceY", 8, 3, 4, 3, Q("1.124 mm")),
    Sketcher.Constraint("DistanceY", 12, 3, 11, 3, Q("6.831 mm")),
    Sketcher.Constraint("DistanceY", 16, 3, 12, 3, Q("1.124 mm")),
    Sketcher.Constraint("DistanceX", 2, 3, -1, 1, Q("9.7428 mm")),
    Sketcher.Constraint("DistanceY", -1, 1, 4, 3, Q("105.8667 mm")),
    Sketcher.Constraint("DistanceY", -1, 1, 11, 3, Q("92.0883 mm")),
])
pocket1 = body.newObject("PartDesign::Pocket", "Pocket")
pocket1.Profile = sketch6
pocket1.Length = 134.75
pocket1.Reversed = True
doc.recompute()

fillet = body.newObject("PartDesign::Fillet", "Fillet")
fillet.Base = (pocket1, edges_at(pocket1, [
    (-18.5, 110, 53),
    (18.5, 110, 53),
    (-18.5, 110, -53),
    (18.5, 110, -53),
]))
fillet.Radius = 10

doc.recompute()
